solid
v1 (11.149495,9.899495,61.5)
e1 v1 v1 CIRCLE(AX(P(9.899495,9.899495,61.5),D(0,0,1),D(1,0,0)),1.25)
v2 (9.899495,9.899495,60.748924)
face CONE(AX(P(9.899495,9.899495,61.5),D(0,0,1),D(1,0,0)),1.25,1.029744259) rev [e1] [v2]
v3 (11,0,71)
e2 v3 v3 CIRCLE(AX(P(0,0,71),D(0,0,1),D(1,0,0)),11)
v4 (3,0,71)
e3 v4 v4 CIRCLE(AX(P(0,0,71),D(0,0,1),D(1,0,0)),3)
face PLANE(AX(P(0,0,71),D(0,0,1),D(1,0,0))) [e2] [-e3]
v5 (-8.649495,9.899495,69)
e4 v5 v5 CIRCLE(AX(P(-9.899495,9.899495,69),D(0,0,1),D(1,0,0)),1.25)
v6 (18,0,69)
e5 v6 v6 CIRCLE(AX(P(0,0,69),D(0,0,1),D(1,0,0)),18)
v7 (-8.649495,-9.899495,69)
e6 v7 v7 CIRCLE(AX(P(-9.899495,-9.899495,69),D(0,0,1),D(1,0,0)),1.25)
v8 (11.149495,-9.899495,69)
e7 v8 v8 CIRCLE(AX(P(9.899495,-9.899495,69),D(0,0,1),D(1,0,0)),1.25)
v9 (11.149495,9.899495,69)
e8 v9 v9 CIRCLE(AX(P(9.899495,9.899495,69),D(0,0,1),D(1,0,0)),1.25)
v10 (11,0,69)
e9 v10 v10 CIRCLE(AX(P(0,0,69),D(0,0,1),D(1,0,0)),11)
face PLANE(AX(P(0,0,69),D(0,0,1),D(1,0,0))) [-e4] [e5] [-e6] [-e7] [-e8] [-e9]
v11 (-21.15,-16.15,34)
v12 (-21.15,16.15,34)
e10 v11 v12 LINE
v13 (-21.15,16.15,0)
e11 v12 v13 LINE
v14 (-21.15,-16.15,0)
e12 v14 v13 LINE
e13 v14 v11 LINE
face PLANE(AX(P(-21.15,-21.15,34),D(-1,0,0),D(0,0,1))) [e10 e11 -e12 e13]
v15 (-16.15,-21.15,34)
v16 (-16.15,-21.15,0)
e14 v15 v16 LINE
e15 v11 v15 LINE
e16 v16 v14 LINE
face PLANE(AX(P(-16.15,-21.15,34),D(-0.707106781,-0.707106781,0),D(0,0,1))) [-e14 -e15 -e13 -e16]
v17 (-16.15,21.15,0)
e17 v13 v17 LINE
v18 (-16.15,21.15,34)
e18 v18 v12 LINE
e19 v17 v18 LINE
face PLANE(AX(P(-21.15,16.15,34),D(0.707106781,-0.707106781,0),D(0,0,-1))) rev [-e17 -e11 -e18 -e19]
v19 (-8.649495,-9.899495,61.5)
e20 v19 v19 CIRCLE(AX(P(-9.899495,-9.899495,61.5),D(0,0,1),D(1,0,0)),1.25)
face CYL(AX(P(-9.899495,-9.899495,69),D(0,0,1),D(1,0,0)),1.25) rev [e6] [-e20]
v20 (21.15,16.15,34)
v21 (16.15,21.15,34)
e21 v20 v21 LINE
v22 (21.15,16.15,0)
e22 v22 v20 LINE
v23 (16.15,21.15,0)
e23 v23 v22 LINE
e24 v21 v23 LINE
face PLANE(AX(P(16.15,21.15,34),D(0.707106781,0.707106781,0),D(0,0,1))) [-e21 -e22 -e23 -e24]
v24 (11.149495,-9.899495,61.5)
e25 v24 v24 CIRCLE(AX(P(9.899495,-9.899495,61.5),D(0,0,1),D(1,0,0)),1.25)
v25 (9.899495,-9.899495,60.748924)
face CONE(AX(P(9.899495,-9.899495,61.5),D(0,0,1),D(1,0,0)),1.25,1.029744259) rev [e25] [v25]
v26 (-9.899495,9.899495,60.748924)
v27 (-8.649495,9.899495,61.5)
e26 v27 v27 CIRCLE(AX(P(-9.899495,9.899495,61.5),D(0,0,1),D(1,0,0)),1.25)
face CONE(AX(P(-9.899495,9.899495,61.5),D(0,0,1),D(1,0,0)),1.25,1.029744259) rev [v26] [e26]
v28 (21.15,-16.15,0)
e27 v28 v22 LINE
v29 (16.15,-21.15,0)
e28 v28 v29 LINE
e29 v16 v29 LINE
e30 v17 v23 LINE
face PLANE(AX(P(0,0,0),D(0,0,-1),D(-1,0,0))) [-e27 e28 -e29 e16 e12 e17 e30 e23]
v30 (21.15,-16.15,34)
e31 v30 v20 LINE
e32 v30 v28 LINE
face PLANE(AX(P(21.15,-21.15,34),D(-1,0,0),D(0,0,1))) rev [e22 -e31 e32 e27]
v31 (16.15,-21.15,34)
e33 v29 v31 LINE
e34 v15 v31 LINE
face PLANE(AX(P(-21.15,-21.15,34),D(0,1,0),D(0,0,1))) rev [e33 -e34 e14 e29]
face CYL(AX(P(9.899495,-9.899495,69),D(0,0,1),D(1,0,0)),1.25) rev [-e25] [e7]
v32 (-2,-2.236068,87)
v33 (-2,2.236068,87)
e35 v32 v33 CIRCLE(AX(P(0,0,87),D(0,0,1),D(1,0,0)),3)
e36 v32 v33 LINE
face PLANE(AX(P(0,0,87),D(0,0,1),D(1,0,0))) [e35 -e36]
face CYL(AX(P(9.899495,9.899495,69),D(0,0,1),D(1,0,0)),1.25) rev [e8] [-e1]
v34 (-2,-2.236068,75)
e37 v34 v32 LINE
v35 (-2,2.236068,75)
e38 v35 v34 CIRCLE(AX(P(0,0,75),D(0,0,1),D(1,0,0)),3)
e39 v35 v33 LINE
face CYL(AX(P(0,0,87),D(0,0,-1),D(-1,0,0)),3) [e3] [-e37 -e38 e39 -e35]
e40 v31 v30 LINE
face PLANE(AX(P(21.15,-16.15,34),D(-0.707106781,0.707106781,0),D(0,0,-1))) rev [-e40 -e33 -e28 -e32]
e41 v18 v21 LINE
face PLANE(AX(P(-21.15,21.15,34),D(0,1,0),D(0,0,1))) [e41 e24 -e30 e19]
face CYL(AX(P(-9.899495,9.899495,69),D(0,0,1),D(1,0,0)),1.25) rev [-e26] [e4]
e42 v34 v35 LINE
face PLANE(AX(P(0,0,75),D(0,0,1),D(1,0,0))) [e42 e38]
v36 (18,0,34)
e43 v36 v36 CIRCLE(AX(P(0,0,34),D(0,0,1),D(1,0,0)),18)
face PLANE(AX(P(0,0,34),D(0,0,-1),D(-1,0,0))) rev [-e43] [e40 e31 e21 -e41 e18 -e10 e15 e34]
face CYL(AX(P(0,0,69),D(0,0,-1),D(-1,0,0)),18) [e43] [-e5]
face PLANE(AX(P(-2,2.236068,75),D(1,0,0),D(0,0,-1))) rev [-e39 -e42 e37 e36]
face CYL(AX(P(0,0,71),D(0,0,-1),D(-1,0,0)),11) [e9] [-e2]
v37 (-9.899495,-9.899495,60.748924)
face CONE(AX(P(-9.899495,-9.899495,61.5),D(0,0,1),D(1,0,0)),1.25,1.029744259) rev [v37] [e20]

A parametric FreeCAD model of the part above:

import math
import FreeCAD as App
import Part
import Sketcher

V = App.Vector
Q = App.Units.Quantity


def edges_at(feature, points):
    """Names of the edges that pass closest to the given points."""
    edges = feature.Shape.Edges
    near = lambda p: min(range(len(edges)), key=lambda i: edges[i].distToShape(Part.Vertex(*p))[0])
    return sorted({f"Edge{near(p) + 1}" for p in points})


def add_polygon(sketch, points):
    """Adds a closed chain of lines whose ends are joined by coincident constraints."""
    first, n = sketch.GeometryCount, len(points)
    for a, b in zip(points, points[1:] + points[:1]):
        sketch.addGeometry(Part.LineSegment(App.Vector(*a, 0), App.Vector(*b, 0)), False)
    for i in range(n):
        sketch.addConstraint(Sketcher.Constraint("Coincident", first + i, 2, first + (i + 1) % n, 1))

doc = App.newDocument("Part")
body = doc.addObject("PartDesign::Body", "Body")

sketch1 = body.newObject("Sketcher::SketchObject", "Sketch")
sketch1.AttachmentSupport = (doc.getObject("XY_Plane"), [""])
sketch1.MapMode = "FlatFace"
add_polygon(sketch1, [(-21.15, 21.15), (-21.15, -21.15), (21.15, -21.15), (21.15, 21.15)])
sketch1.addConstraint([
    Sketcher.Constraint("Vertical", 0),
    Sketcher.Constraint("Horizontal", 1),
    Sketcher.Constraint("Vertical", 2),
    Sketcher.Constraint("Horizontal", 3),
    Sketcher.Constraint("Symmetric", 0, 2, 2, 2, -1, 1),
    Sketcher.Constraint("Equal", 3, 0),
    Sketcher.Constraint("DistanceX", 1, 1, 1, 2, Q("42.3 mm")),
])
pad1 = body.newObject("PartDesign::Pad", "Pad")
pad1.Profile = sketch1
pad1.Length = 34

sketch2 = body.newObject("Sketcher::SketchObject", "Sketch001")
sketch2.AttachmentSupport = (doc.getObject("XY_Plane"), [""])
sketch2.MapMode = "FlatFace"
sketch2.AttachmentOffset = App.Placement(V(0, 0, 34), App.Rotation())
sketch2.addGeometry(Part.Circle(V(0, 0, 0), V(0, 0, 1), 18), False)
sketch2.addConstraint([
    Sketcher.Constraint("Coincident", 0, 3, -1, 1),
    Sketcher.Constraint("Diameter", 0, Q("36 mm")),
])
pad2 = body.newObject("PartDesign::Pad", "Pad001")
pad2.Profile = sketch2
pad2.Length = 35

sketch3 = body.newObject("Sketcher::SketchObject", "Sketch002")
sketch3.AttachmentSupport = (doc.getObject("XY_Plane"), [""])
sketch3.MapMode = "FlatFace"
sketch3.AttachmentOffset = App.Placement(V(0, 0, 69), App.Rotation())
sketch3.addGeometry(Part.Circle(V(0, 0, 0), V(0, 0, 1), 11), False)
sketch3.addConstraint([
    Sketcher.Constraint("Coincident", 0, 3, -1, 1),
    Sketcher.Constraint("Diameter", 0, Q("22 mm")),
])
pad3 = body.newObject("PartDesign::Pad", "Pad002")
pad3.Profile = sketch3
pad3.Length = 2

sketch4 = body.newObject("Sketcher::SketchObject", "Sketch003")
sketch4.AttachmentSupport = (doc.getObject("XY_Plane"), [""])
sketch4.MapMode = "FlatFace"
sketch4.AttachmentOffset = App.Placement(V(0, 0, 71), App.Rotation())
sketch4.addGeometry(Part.Circle(V(0, 0, 0), V(0, 0, 1), 3), False)
sketch4.addConstraint([
    Sketcher.Constraint("Coincident", 0, 3, -1, 1),
    Sketcher.Constraint("Diameter", 0, Q("6 mm")),
])
pad4 = body.newObject("PartDesign::Pad", "Pad003")
pad4.Profile = sketch4
pad4.Length = 16

sketch5 = body.newObject("Sketcher::SketchObject", "Sketch004")
sketch5.AttachmentSupport = (doc.getObject("XY_Plane"), [""])
sketch5.MapMode = "FlatFace"
sketch5.AttachmentOffset = App.Placement(V(0, 0, 87), App.Rotation())
sketch5.addGeometry([
    Part.LineSegment(V(-2, -2.236068, 0), V(-2, 2.236068, 0)),
    Part.ArcOfCircle(Part.Circle(V(0, 0, 0), V(0, 0, 1), 3), math.radians(131.810315), math.radians(228.189685)),
], False)
sketch5.addConstraint([
    Sketcher.Constraint("Coincident", 0, 1, 1, 2),
    Sketcher.Constraint("Coincident", 1, 1, 0, 2),
    Sketcher.Constraint("Vertical", 0),
    Sketcher.Constraint("Coincident", 1, 3, -1, 1),
    Sketcher.Constraint("Radius", 1, Q("3 mm")),
    Sketcher.Constraint("DistanceX", 0, 1, -1, 1, Q("2 mm")),
])
pocket1 = body.newObject("PartDesign::Pocket", "Pocket")
pocket1.Profile = sketch5
pocket1.Length = 12
doc.recompute()

chamfer = body.newObject("PartDesign::Chamfer", "Chamfer")
chamfer.Base = (pocket1, edges_at(pocket1, [
    (-21.15, -21.15, 17),
    (21.15, -21.15, 17),
    (21.15, 21.15, 17),
    (-21.15, 21.15, 17),
]))
chamfer.Size = 5

sketch6 = body.newObject("Sketcher::SketchObject", "Sketch005")
sketch6.AttachmentSupport = (doc.getObject("XY_Plane"), [""])
sketch6.MapMode = "FlatFace"
sketch6.AttachmentOffset = App.Placement(V(0, 0, 69), App.Rotation())
sketch6.addGeometry([
    Part.Circle(V(-9.899495, 9.899495, 0), V(0, 0, 1), 1.25),
    Part.Circle(V(9.899495, 9.899495, 0), V(0, 0, 1), 1.25),
    Part.Circle(V(9.899495, -9.899495, 0), V(0, 0, 1), 1.25),
    Part.Circle(V(-9.899495, -9.899495, 0), V(0, 0, 1), 1.25),
], False)
sketch6.addConstraint([
    Sketcher.Constraint("Equal", 0, 1),
    Sketcher.Constraint("Equal", 1, 2),
    Sketcher.Constraint("Equal", 2, 3),
    Sketcher.Constraint("Symmetric", 0, 3, 2, 3, -1, 1),
    Sketcher.Constraint("Symmetric", 1, 3, 3, 3, -1, 1),
    Sketcher.Constraint("Symmetric", 0, 3, 1, 3, -2),
    Sketcher.Constraint("Diameter", 0, Q("2.5 mm")),
    Sketcher.Constraint("DistanceX", 0, 3, 1, 3, Q("19.79899 mm")),
    Sketcher.Constraint("DistanceY", 2, 3, 1, 3, Q("19.79899 mm")),
])
doc.recompute()
hole = body.newObject("PartDesign::Hole", "Hole")
hole.Profile = sketch6
hole.ThreadType = "None"
hole.Diameter = 2.5
hole.DepthType = "Dimension"
hole.Depth = 7.5
hole.DrillPoint = "Angled"
hole.DrillPointAngle = 118

doc.recompute()
